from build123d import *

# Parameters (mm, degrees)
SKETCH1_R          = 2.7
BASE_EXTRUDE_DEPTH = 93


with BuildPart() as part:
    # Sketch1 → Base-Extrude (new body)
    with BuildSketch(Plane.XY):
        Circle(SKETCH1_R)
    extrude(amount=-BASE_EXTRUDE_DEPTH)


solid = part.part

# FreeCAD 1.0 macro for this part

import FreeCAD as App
import Part
import Sketcher

doc = App.newDocument("Part")
params = doc.addObject("Spreadsheet::Sheet", "Params")
for row, (alias, value) in enumerate([
    ("sketch1_diameter", "5.4 mm"),
    ("pad1_length", "93 mm"),
], start=1):
    params.set(f"A{row}", alias)
    params.set(f"B{row}", "=" + value)
    params.setAlias(f"B{row}", alias)

body = doc.addObject("PartDesign::Body", "Body")

# Sketch on XY plane
sketch1 = body.newObject("Sketcher::SketchObject", "Sketch")
sketch1.AttachmentSupport = (doc.getObject("XY_Plane"), [""])
sketch1.MapMode = "FlatFace"
sketch1.addGeometry(Part.Circle(App.Vector(0, 0, 0), App.Vector(0, 0, 1), 2.7), False)
sketch1.addConstraint(Sketcher.Constraint("Coincident", 0, 3, -1, 1))
sketch1.addConstraint(Sketcher.Constraint("Diameter", 0, 5.4))
sketch1.setExpression("Constraints[1]", "Params.sketch1_diameter")
pad1 = body.newObject("PartDesign::Pad", "Pad")
pad1.Profile = sketch1
pad1.setExpression("Length", "Params.pad1_length")
pad1.Reversed = True

doc.recompute()
